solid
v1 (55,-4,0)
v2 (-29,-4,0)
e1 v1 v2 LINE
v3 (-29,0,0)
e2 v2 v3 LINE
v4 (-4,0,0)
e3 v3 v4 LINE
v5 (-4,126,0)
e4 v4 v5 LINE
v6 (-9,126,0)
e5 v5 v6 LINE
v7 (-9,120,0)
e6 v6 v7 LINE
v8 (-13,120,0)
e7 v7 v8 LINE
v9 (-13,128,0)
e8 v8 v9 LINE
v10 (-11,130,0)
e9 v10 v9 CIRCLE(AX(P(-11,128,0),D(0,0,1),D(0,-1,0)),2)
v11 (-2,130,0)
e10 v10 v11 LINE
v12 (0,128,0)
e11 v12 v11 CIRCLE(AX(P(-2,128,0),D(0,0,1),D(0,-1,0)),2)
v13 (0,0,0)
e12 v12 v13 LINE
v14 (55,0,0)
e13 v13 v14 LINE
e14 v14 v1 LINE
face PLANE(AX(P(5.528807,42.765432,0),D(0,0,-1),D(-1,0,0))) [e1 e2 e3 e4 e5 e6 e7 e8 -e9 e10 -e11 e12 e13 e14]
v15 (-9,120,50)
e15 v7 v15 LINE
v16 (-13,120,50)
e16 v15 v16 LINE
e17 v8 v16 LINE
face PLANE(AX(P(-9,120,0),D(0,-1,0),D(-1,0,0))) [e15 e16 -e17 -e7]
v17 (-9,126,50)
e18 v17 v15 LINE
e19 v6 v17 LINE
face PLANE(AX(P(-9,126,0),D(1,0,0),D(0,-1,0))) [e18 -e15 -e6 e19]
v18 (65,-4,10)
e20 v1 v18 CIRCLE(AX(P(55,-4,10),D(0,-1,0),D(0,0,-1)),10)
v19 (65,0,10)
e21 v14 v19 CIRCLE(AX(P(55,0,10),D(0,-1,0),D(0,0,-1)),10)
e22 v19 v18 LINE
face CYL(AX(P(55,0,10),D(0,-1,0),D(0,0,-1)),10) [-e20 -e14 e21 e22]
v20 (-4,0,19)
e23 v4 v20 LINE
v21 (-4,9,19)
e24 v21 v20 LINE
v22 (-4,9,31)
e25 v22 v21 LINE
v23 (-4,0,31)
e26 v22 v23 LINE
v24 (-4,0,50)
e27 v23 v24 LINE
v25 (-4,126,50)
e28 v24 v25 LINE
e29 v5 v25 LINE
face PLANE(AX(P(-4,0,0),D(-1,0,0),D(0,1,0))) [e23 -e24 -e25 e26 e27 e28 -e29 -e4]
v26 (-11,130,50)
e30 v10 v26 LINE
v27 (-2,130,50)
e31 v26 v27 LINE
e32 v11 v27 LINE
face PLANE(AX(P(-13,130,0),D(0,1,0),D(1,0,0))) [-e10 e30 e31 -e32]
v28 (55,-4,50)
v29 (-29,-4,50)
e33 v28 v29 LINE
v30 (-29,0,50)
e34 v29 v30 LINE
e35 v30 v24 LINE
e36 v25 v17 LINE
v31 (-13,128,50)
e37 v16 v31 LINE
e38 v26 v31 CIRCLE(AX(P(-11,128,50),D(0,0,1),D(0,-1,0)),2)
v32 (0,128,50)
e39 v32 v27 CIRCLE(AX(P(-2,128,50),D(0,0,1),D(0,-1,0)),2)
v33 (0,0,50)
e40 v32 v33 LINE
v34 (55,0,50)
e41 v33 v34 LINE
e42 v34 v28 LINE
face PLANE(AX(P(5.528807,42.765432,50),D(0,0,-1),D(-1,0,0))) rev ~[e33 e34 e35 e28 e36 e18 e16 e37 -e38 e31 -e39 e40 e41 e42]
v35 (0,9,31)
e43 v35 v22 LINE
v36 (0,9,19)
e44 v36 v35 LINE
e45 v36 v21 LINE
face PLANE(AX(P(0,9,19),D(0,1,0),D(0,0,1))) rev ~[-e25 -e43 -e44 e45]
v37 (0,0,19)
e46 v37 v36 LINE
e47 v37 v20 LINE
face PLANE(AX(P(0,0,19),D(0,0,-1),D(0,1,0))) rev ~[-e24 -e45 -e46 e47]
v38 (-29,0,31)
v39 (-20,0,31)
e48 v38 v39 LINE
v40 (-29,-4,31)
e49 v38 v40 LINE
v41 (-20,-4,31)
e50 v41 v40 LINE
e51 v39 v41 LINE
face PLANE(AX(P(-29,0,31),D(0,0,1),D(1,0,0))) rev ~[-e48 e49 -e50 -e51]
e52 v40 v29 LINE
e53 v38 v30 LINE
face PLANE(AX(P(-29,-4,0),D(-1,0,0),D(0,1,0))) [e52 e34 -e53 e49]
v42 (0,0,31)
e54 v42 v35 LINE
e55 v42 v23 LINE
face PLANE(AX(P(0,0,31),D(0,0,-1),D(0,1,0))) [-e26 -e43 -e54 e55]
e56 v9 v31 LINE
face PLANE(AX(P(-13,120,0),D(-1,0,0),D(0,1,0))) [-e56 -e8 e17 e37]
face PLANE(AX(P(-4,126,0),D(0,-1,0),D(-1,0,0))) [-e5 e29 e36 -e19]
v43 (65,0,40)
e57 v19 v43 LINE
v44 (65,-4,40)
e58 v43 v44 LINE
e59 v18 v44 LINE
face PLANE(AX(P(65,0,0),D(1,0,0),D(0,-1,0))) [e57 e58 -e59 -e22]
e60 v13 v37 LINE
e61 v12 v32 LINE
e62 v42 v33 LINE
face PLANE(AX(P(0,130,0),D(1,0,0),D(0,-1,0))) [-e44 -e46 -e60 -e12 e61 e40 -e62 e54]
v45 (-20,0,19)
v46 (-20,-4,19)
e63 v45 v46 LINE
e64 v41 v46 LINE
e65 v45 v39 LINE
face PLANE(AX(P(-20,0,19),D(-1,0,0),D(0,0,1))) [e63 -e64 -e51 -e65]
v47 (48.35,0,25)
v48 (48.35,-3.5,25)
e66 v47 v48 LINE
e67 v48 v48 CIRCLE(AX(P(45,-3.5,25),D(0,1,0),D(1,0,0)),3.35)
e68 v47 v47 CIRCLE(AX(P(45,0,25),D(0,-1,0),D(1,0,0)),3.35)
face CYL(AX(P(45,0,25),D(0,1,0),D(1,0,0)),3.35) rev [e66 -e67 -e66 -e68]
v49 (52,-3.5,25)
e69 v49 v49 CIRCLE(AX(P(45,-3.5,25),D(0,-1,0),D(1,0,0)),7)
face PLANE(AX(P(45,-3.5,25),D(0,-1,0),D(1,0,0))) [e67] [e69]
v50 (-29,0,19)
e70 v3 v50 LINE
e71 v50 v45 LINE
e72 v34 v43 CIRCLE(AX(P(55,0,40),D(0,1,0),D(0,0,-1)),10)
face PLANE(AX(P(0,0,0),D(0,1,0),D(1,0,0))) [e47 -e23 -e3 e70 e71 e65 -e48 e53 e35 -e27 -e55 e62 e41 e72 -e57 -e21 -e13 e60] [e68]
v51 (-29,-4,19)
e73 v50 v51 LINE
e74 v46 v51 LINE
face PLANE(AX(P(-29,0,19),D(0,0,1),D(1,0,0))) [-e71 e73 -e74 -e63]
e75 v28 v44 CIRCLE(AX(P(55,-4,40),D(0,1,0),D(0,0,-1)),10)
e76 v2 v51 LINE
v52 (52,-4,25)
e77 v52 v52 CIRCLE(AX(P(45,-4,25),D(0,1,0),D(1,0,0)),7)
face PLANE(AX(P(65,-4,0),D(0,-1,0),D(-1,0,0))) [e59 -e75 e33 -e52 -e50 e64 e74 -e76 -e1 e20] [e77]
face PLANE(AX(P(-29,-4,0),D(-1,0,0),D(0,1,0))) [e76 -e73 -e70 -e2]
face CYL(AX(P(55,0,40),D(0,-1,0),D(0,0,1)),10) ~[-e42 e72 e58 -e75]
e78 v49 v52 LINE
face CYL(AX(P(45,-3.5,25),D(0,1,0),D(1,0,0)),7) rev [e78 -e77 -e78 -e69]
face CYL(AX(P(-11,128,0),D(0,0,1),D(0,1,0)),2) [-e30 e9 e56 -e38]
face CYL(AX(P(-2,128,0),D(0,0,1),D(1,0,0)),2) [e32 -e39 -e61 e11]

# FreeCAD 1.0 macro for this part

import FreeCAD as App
import Part
import Sketcher
from FreeCAD import Vector


def edges_at(feature, points):
    """Names of the edges that pass closest to the given points."""
    edges = feature.Shape.Edges
    near = lambda p: min(range(len(edges)), key=lambda i: edges[i].distToShape(Part.Vertex(*p))[0])
    return sorted({f"Edge{near(p) + 1}" for p in points})

doc = App.newDocument("Part")
params = doc.addObject("Spreadsheet::Sheet", "Params")
for row, (alias, value) in enumerate([
    ("sketch1_width", "13 mm"),
    ("sketch1_width2", "4 mm"),
    ("sketch1_width3", "5 mm"),
    ("sketch1_width4", "25 mm"),
    ("sketch1_width5", "94 mm"),
    ("pad1_length", "50 mm"),
    ("sketch2_diameter", "6.7 mm"),
    ("sketch3_diameter", "14 mm"),
    ("fillet_radius", "10 mm"),
    ("fillet2_radius", "2 mm"),
    ("sketch4_width", "9 mm"),
    ("sketch4_height", "12 mm"),
    ("sketch5_width", "9 mm"),
    ("sketch5_height", "12 mm"),
], start=1):
    params.set(f"A{row}", alias)
    params.set(f"B{row}", "=" + value)
    params.setAlias(f"B{row}", alias)

body = doc.addObject("PartDesign::Body", "Body")

sketch1 = doc.addObject("Sketcher::SketchObject", "Sketch")
body.addObject(sketch1)
sketch1.AttachmentSupport = (doc.XY_Plane, [""])
sketch1.MapMode = "FlatFace"
sketch1.addGeometry([
    Part.LineSegment(Vector(0, 0, 0), Vector(0, 130, 0)),
    Part.LineSegment(Vector(0, 130, 0), Vector(-13, 130, 0)),
    Part.LineSegment(Vector(-13, 130, 0), Vector(-13, 120, 0)),
    Part.LineSegment(Vector(-13, 120, 0), Vector(-9, 120, 0)),
    Part.LineSegment(Vector(-9, 120, 0), Vector(-9, 126, 0)),
    Part.LineSegment(Vector(-9, 126, 0), Vector(-4, 126, 0)),
    Part.LineSegment(Vector(-4, 126, 0), Vector(-4, 0, 0)),
    Part.LineSegment(Vector(-4, 0, 0), Vector(-29, 0, 0)),
    Part.LineSegment(Vector(-29, 0, 0), Vector(-29, -4, 0)),
    Part.LineSegment(Vector(-29, -4, 0), Vector(65, -4, 0)),
    Part.LineSegment(Vector(65, -4, 0), Vector(65, 0, 0)),
    Part.LineSegment(Vector(65, 0, 0), Vector(0, 0, 0)),
], False)
sketch1.addConstraint([
    Sketcher.Constraint("Coincident", 0, 2, 1, 1),
    Sketcher.Constraint("Coincident", 1, 2, 2, 1),
    Sketcher.Constraint("Coincident", 2, 2, 3, 1),
    Sketcher.Constraint("Coincident", 3, 2, 4, 1),
    Sketcher.Constraint("Coincident", 4, 2, 5, 1),
    Sketcher.Constraint("Coincident", 5, 2, 6, 1),
    Sketcher.Constraint("Coincident", 6, 2, 7, 1),
    Sketcher.Constraint("Coincident", 7, 2, 8, 1),
    Sketcher.Constraint("Coincident", 8, 2, 9, 1),
    Sketcher.Constraint("Coincident", 9, 2, 10, 1),
    Sketcher.Constraint("Coincident", 10, 2, 11, 1),
    Sketcher.Constraint("Coincident", 11, 2, 0, 1),
    Sketcher.Constraint("Vertical", 0),
    Sketcher.Constraint("Horizontal", 1),
    Sketcher.Constraint("Vertical", 2),
    Sketcher.Constraint("Horizontal", 3),
    Sketcher.Constraint("Vertical", 4),
    Sketcher.Constraint("Horizontal", 5),
    Sketcher.Constraint("Vertical", 6),
    Sketcher.Constraint("Horizontal", 7),
    Sketcher.Constraint("Vertical", 8),
    Sketcher.Constraint("Horizontal", 9),
    Sketcher.Constraint("Vertical", 10),
    Sketcher.Constraint("Horizontal", 11),
    Sketcher.Constraint("Coincident", 11, 2, -1, 1),
    Sketcher.Constraint("PointOnObject", 6, 2, -1),
    Sketcher.Constraint("Equal", 3, 8),
    Sketcher.Constraint("DistanceX", 1, 2, 1, 1, 13.0),
    Sketcher.Constraint("DistanceX", 3, 1, 3, 2, 4.0),
    Sketcher.Constraint("DistanceX", 5, 1, 5, 2, 5.0),
    Sketcher.Constraint("DistanceX", 7, 2, 7, 1, 25.0),
    Sketcher.Constraint("DistanceX", 9, 1, 9, 2, 94.0),
    Sketcher.Constraint("DistanceY", 0, 1, 0, 2, 130.0),
    Sketcher.Constraint("DistanceY", 2, 2, 2, 1, 10.0),
    Sketcher.Constraint("DistanceY", 4, 1, 4, 2, 6.0),
])
sketch1.setExpression("Constraints[27]", "Params.sketch1_width")
sketch1.setExpression("Constraints[28]", "Params.sketch1_width2")
sketch1.setExpression("Constraints[29]", "Params.sketch1_width3")
sketch1.setExpression("Constraints[30]", "Params.sketch1_width4")
sketch1.setExpression("Constraints[31]", "Params.sketch1_width5")
pad1 = doc.addObject("PartDesign::Pad", "Pad")
body.addObject(pad1)
pad1.Profile = sketch1
pad1.setExpression("Length", "Params.pad1_length")

sketch2 = doc.addObject("Sketcher::SketchObject", "Sketch001")
body.addObject(sketch2)
sketch2.AttachmentSupport = (doc.XZ_Plane, [""])
sketch2.MapMode = "FlatFace"
sketch2.addGeometry(Part.Circle(Vector(45, 25, 0), Vector(0, 0, 1), 3.35), False)
sketch2.addConstraint([
    Sketcher.Constraint("Diameter", 0, 6.7),
    Sketcher.Constraint("DistanceX", -1, 1, 0, 3, 45.0),
    Sketcher.Constraint("DistanceY", -1, 1, 0, 3, 25.0),
])
sketch2.setExpression("Constraints[0]", "Params.sketch2_diameter")
pocket1 = doc.addObject("PartDesign::Pocket", "Pocket")
body.addObject(pocket1)
pocket1.Profile = sketch2
pocket1.Type = "ThroughAll"
pocket1.Midplane = True

sketch3 = doc.addObject("Sketcher::SketchObject", "Sketch002")
body.addObject(sketch3)
sketch3.AttachmentSupport = (doc.XZ_Plane, [""])
sketch3.MapMode = "FlatFace"
sketch3.AttachmentOffset = App.Placement(Vector(0, 0, 3.5), App.Rotation())
sketch3.addGeometry(Part.Circle(Vector(45, 25, 0), Vector(0, 0, 1), 7), False)
sketch3.addConstraint([
    Sketcher.Constraint("Diameter", 0, 14.0),
    Sketcher.Constraint("DistanceX", -1, 1, 0, 3, 45.0),
    Sketcher.Constraint("DistanceY", -1, 1, 0, 3, 25.0),
])
sketch3.setExpression("Constraints[0]", "Params.sketch3_diameter")
pocket2 = doc.addObject("PartDesign::Pocket", "Pocket001")
body.addObject(pocket2)
pocket2.Profile = sketch3
pocket2.Type = "ThroughAll"
pocket2.Reversed = True
doc.recompute()

fillet = doc.addObject("PartDesign::Fillet", "Fillet")
body.addObject(fillet)
fillet.Base = (pocket2, edges_at(pocket2, [(65, -2, 50), (65, -2, 0)]))
fillet.setExpression("Radius", "Params.fillet_radius")
doc.recompute()

fillet2 = doc.addObject("PartDesign::Fillet", "Fillet001")
body.addObject(fillet2)
fillet2.Base = (fillet, edges_at(fillet, [(-13, 130, 25), (0, 130, 25)]))
fillet2.setExpression("Radius", "Params.fillet2_radius")

sketch4 = doc.addObject("Sketcher::SketchObject", "Sketch003")
body.addObject(sketch4)
sketch4.AttachmentSupport = (doc.YZ_Plane, [""])
sketch4.MapMode = "FlatFace"
sketch4.addGeometry([
    Part.LineSegment(Vector(0, 31, 0), Vector(0, 19, 0)),
    Part.LineSegment(Vector(0, 19, 0), Vector(9, 19, 0)),
    Part.LineSegment(Vector(9, 19, 0), Vector(9, 31, 0)),
    Part.LineSegment(Vector(9, 31, 0), Vector(0, 31, 0)),
], False)
sketch4.addConstraint([
    Sketcher.Constraint("Coincident", 0, 2, 1, 1),
    Sketcher.Constraint("Coincident", 1, 2, 2, 1),
    Sketcher.Constraint("Coincident", 2, 2, 3, 1),
    Sketcher.Constraint("Coincident", 3, 2, 0, 1),
    Sketcher.Constraint("Vertical", 0),
    Sketcher.Constraint("Horizontal", 1),
    Sketcher.Constraint("Vertical", 2),
    Sketcher.Constraint("Horizontal", 3),
    Sketcher.Constraint("PointOnObject", 0, 2, -2),
    Sketcher.Constraint("DistanceX", 1, 1, 1, 2, 9.0),
    Sketcher.Constraint("DistanceY", 0, 2, 0, 1, 12.0),
    Sketcher.Constraint("DistanceY", -1, 1, 0, 2, 19.0),
])
sketch4.setExpression("Constraints[9]", "Params.sketch4_width")
sketch4.setExpression("Constraints[10]", "Params.sketch4_height")
pocket3 = doc.addObject("PartDesign::Pocket", "Pocket002")
body.addObject(pocket3)
pocket3.Profile = sketch4
pocket3.Type = "ThroughAll"

sketch5 = doc.addObject("Sketcher::SketchObject", "Sketch004")
body.addObject(sketch5)
sketch5.AttachmentSupport = (doc.XZ_Plane, [""])
sketch5.MapMode = "FlatFace"
sketch5.addGeometry([
    Part.LineSegment(Vector(-29, 31, 0), Vector(-29, 19, 0)),
    Part.LineSegment(Vector(-29, 19, 0), Vector(-20, 19, 0)),
    Part.LineSegment(Vector(-20, 19, 0), Vector(-20, 31, 0)),
    Part.LineSegment(Vector(-20, 31, 0), Vector(-29, 31, 0)),
], False)
sketch5.addConstraint([
    Sketcher.Constraint("Coincident", 0, 2, 1, 1),
    Sketcher.Constraint("Coincident", 1, 2, 2, 1),
    Sketcher.Constraint("Coincident", 2, 2, 3, 1),
    Sketcher.Constraint("Coincident", 3, 2, 0, 1),
    Sketcher.Constraint("Vertical", 0),
    Sketcher.Constraint("Horizontal", 1),
    Sketcher.Constraint("Vertical", 2),
    Sketcher.Constraint("Horizontal", 3),
    Sketcher.Constraint("DistanceX", 1, 1, 1, 2, 9.0),
    Sketcher.Constraint("DistanceY", 0, 2, 0, 1, 12.0),
    Sketcher.Constraint("DistanceX", 0, 2, -1, 1, 29.0),
    Sketcher.Constraint("DistanceY", -1, 1, 0, 2, 19.0),
])
sketch5.setExpression("Constraints[8]", "Params.sketch5_width")
sketch5.setExpression("Constraints[9]", "Params.sketch5_height")
pocket4 = doc.addObject("PartDesign::Pocket", "Pocket003")
body.addObject(pocket4)
pocket4.Profile = sketch5
pocket4.Type = "ThroughAll"
pocket4.Reversed = True

doc.recompute()
